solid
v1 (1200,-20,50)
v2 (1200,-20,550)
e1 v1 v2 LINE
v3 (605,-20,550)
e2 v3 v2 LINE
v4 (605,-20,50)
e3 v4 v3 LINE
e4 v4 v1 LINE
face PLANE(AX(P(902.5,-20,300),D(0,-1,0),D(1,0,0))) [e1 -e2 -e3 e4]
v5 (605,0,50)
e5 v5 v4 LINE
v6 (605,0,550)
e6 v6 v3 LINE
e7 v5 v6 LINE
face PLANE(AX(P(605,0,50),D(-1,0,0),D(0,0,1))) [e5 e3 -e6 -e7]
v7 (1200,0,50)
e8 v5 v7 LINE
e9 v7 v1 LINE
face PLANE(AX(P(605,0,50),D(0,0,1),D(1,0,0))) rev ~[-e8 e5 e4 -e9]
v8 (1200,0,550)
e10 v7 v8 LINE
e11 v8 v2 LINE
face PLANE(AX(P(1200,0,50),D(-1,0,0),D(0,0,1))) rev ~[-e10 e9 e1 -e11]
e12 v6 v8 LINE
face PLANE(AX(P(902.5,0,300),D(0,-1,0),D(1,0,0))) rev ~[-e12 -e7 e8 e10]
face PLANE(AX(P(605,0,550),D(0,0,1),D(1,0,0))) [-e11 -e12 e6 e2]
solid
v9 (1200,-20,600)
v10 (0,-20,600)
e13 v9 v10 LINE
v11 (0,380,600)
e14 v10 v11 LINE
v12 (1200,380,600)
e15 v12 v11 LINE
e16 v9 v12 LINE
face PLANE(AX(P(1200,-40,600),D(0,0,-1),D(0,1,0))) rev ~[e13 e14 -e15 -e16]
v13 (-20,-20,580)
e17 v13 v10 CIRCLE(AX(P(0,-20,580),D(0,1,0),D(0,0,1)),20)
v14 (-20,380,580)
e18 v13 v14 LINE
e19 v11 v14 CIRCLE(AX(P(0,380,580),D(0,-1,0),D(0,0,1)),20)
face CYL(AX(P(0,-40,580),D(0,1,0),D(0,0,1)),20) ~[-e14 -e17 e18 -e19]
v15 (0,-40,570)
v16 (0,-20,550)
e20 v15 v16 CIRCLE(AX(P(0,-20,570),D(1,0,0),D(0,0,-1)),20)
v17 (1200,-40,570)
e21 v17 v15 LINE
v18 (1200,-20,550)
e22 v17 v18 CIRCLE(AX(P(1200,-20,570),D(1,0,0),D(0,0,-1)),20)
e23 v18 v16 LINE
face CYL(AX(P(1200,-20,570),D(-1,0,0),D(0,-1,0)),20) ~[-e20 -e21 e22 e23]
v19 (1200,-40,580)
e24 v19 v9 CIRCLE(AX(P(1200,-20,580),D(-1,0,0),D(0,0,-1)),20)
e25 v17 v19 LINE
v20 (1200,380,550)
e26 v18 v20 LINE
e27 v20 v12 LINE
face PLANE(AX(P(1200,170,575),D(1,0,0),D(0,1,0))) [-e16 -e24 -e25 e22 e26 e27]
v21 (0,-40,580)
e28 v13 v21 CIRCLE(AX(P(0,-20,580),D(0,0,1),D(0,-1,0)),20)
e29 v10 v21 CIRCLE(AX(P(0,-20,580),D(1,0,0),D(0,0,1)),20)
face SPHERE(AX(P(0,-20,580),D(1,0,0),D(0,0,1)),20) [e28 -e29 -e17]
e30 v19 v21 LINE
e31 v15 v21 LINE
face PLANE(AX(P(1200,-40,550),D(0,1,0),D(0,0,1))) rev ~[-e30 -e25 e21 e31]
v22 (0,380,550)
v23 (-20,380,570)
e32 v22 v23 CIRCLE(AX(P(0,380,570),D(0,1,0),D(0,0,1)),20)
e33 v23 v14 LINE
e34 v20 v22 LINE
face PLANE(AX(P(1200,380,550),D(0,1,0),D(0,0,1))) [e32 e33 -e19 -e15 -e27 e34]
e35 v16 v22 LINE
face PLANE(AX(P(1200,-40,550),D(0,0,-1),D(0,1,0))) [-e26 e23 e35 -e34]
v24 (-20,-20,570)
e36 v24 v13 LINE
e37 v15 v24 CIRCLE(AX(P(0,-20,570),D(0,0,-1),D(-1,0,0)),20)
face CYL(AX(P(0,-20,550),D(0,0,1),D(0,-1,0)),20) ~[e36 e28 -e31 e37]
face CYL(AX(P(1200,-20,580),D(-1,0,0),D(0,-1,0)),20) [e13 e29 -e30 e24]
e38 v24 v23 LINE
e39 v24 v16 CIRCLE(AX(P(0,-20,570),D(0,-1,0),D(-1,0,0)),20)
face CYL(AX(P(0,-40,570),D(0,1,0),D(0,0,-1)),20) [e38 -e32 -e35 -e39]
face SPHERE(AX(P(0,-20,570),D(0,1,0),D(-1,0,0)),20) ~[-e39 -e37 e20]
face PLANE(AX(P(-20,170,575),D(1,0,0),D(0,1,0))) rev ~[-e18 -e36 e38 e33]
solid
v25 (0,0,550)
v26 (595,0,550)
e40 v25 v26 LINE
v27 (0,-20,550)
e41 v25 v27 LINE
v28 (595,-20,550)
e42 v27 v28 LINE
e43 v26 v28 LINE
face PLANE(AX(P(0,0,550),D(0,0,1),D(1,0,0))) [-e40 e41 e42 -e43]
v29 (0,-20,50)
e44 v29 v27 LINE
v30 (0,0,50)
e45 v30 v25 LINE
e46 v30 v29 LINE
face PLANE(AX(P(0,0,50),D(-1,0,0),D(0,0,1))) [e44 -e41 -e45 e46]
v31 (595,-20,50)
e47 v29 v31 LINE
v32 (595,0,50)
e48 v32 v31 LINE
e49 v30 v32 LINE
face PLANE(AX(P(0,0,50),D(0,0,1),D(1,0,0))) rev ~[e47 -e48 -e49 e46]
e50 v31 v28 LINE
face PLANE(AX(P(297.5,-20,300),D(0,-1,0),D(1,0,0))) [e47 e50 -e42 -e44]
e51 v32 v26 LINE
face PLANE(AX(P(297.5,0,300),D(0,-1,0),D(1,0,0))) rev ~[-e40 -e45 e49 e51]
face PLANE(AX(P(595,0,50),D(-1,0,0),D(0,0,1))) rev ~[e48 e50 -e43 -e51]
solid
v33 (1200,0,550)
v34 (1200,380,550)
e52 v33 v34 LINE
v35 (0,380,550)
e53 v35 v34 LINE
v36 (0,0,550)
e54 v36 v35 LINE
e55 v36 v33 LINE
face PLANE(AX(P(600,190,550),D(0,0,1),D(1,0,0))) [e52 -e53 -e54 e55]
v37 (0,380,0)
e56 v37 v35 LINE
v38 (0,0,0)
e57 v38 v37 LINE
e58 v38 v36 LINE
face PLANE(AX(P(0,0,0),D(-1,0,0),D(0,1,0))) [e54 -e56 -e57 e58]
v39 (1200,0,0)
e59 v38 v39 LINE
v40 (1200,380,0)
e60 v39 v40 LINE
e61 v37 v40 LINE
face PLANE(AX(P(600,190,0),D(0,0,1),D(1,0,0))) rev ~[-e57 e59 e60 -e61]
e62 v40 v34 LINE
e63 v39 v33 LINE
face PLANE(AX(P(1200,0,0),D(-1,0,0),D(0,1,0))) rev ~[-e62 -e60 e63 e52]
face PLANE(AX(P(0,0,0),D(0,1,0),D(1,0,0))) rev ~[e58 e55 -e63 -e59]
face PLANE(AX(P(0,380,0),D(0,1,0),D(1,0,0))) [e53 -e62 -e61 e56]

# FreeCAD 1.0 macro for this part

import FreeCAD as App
import Part
import Sketcher


def edges_at(feature, points):
    """Names of the edges that pass closest to the given points."""
    edges = feature.Shape.Edges
    near = lambda p: min(range(len(edges)), key=lambda i: edges[i].distToShape(Part.Vertex(*p))[0])
    return sorted({f"Edge{near(p) + 1}" for p in points})


def add_polygon(sketch, points):
    """Adds a closed chain of lines whose ends are joined by coincident constraints."""
    first, n = sketch.GeometryCount, len(points)
    for a, b in zip(points, points[1:] + points[:1]):
        sketch.addGeometry(Part.LineSegment(App.Vector(*a, 0), App.Vector(*b, 0)), False)
    for i in range(n):
        sketch.addConstraint(Sketcher.Constraint("Coincident", first + i, 2, first + (i + 1) % n, 1))

doc = App.newDocument("Part")
body = doc.addObject("PartDesign::Body", "Body")

# Sketch on XY plane
sketch1 = doc.addObject("Sketcher::SketchObject", "Sketch")
body.addObject(sketch1)
sketch1.AttachmentSupport = (doc.XY_Plane, [""])
sketch1.MapMode = "FlatFace"
add_polygon(sketch1, [(0, 380), (0, 0), (1200, 0), (1200, 380)])  # lines 0-3
sketch1.addConstraint([
    Sketcher.Constraint("Vertical", 0),
    Sketcher.Constraint("Horizontal", 1),
    Sketcher.Constraint("Vertical", 2),
    Sketcher.Constraint("Horizontal", 3),
    Sketcher.Constraint("Coincident", 0, 2, -1, 1),
    Sketcher.Constraint("DistanceX", 1, 1, 1, 2, 1200.0),
    Sketcher.Constraint("DistanceY", 0, 2, 0, 1, 380.0),
])
pad1 = doc.addObject("PartDesign::Pad", "Pad")
body.addObject(pad1)
pad1.Profile = sketch1
pad1.Length = 550
body2 = doc.addObject("PartDesign::Body", "Body001")

# Sketch on XZ plane
sketch2 = doc.addObject("Sketcher::SketchObject", "Sketch001")
body2.addObject(sketch2)
sketch2.AttachmentSupport = (doc.getObject("XZ_Plane001"), [""])
sketch2.MapMode = "FlatFace"
add_polygon(sketch2, [(0, 550), (0, 50), (595, 50), (595, 550)])  # lines 0-3
sketch2.addConstraint([
    Sketcher.Constraint("Vertical", 0),
    Sketcher.Constraint("Horizontal", 1),
    Sketcher.Constraint("Vertical", 2),
    Sketcher.Constraint("Horizontal", 3),
    Sketcher.Constraint("PointOnObject", 0, 2, -2),
    Sketcher.Constraint("DistanceX", 1, 1, 1, 2, 595.0),
    Sketcher.Constraint("DistanceY", 0, 2, 0, 1, 500.0),
    Sketcher.Constraint("DistanceY", -1, 1, 0, 2, 50.0),
])
pad2 = doc.addObject("PartDesign::Pad", "Pad001")
body2.addObject(pad2)
pad2.Profile = sketch2
pad2.Length = 20
body3 = doc.addObject("PartDesign::Body", "Body002")

# Sketch on XZ plane
sketch3 = doc.addObject("Sketcher::SketchObject", "Sketch002")
body3.addObject(sketch3)
sketch3.AttachmentSupport = (doc.getObject("XZ_Plane002"), [""])
sketch3.MapMode = "FlatFace"
add_polygon(sketch3, [(605, 550), (605, 50), (1200, 50), (1200, 550)])  # lines 0-3
sketch3.addConstraint([
    Sketcher.Constraint("Vertical", 0),
    Sketcher.Constraint("Horizontal", 1),
    Sketcher.Constraint("Vertical", 2),
    Sketcher.Constraint("Horizontal", 3),
    Sketcher.Constraint("DistanceX", 1, 1, 1, 2, 595.0),
    Sketcher.Constraint("DistanceY", 0, 2, 0, 1, 500.0),
    Sketcher.Constraint("DistanceX", -1, 1, 0, 2, 605.0),
    Sketcher.Constraint("DistanceY", -1, 1, 0, 2, 50.0),
])
pad3 = doc.addObject("PartDesign::Pad", "Pad002")
body3.addObject(pad3)
pad3.Profile = sketch3
pad3.Length = 20
body4 = doc.addObject("PartDesign::Body", "Body003")

# Sketch on YZ plane
sketch4 = doc.addObject("Sketcher::SketchObject", "Sketch003")
body4.addObject(sketch4)
sketch4.AttachmentSupport = (doc.getObject("YZ_Plane003"), [""])
sketch4.MapMode = "FlatFace"
sketch4.AttachmentOffset = App.Placement(App.Vector(0, 0, 1200), App.Rotation())
add_polygon(sketch4, [(-40, 600), (-40, 550), (380, 550), (380, 600)])  # lines 0-3
sketch4.addConstraint([
    Sketcher.Constraint("Vertical", 0),
    Sketcher.Constraint("Horizontal", 1),
    Sketcher.Constraint("Vertical", 2),
    Sketcher.Constraint("Horizontal", 3),
    Sketcher.Constraint("DistanceX", 1, 1, 1, 2, 420.0),
    Sketcher.Constraint("DistanceY", 0, 2, 0, 1, 50.0),
    Sketcher.Constraint("DistanceX", 0, 2, -1, 1, 40.0),
    Sketcher.Constraint("DistanceY", -1, 1, 0, 2, 550.0),
])
pad4 = doc.addObject("PartDesign::Pad", "Pad003")
body4.addObject(pad4)
pad4.Profile = sketch4
pad4.Length = 1220
pad4.Reversed = True
doc.recompute()

fillet = doc.addObject("PartDesign::Fillet", "Fillet")
body4.addObject(fillet)
fillet.Base = (pad4, edges_at(pad4, [
    (590, -40, 600),
    (-20, 170, 600),
    (-20, 170, 550),
    (-20, -40, 575),
    (590, -40, 550),
]))
fillet.Radius = 20

doc.recompute()
